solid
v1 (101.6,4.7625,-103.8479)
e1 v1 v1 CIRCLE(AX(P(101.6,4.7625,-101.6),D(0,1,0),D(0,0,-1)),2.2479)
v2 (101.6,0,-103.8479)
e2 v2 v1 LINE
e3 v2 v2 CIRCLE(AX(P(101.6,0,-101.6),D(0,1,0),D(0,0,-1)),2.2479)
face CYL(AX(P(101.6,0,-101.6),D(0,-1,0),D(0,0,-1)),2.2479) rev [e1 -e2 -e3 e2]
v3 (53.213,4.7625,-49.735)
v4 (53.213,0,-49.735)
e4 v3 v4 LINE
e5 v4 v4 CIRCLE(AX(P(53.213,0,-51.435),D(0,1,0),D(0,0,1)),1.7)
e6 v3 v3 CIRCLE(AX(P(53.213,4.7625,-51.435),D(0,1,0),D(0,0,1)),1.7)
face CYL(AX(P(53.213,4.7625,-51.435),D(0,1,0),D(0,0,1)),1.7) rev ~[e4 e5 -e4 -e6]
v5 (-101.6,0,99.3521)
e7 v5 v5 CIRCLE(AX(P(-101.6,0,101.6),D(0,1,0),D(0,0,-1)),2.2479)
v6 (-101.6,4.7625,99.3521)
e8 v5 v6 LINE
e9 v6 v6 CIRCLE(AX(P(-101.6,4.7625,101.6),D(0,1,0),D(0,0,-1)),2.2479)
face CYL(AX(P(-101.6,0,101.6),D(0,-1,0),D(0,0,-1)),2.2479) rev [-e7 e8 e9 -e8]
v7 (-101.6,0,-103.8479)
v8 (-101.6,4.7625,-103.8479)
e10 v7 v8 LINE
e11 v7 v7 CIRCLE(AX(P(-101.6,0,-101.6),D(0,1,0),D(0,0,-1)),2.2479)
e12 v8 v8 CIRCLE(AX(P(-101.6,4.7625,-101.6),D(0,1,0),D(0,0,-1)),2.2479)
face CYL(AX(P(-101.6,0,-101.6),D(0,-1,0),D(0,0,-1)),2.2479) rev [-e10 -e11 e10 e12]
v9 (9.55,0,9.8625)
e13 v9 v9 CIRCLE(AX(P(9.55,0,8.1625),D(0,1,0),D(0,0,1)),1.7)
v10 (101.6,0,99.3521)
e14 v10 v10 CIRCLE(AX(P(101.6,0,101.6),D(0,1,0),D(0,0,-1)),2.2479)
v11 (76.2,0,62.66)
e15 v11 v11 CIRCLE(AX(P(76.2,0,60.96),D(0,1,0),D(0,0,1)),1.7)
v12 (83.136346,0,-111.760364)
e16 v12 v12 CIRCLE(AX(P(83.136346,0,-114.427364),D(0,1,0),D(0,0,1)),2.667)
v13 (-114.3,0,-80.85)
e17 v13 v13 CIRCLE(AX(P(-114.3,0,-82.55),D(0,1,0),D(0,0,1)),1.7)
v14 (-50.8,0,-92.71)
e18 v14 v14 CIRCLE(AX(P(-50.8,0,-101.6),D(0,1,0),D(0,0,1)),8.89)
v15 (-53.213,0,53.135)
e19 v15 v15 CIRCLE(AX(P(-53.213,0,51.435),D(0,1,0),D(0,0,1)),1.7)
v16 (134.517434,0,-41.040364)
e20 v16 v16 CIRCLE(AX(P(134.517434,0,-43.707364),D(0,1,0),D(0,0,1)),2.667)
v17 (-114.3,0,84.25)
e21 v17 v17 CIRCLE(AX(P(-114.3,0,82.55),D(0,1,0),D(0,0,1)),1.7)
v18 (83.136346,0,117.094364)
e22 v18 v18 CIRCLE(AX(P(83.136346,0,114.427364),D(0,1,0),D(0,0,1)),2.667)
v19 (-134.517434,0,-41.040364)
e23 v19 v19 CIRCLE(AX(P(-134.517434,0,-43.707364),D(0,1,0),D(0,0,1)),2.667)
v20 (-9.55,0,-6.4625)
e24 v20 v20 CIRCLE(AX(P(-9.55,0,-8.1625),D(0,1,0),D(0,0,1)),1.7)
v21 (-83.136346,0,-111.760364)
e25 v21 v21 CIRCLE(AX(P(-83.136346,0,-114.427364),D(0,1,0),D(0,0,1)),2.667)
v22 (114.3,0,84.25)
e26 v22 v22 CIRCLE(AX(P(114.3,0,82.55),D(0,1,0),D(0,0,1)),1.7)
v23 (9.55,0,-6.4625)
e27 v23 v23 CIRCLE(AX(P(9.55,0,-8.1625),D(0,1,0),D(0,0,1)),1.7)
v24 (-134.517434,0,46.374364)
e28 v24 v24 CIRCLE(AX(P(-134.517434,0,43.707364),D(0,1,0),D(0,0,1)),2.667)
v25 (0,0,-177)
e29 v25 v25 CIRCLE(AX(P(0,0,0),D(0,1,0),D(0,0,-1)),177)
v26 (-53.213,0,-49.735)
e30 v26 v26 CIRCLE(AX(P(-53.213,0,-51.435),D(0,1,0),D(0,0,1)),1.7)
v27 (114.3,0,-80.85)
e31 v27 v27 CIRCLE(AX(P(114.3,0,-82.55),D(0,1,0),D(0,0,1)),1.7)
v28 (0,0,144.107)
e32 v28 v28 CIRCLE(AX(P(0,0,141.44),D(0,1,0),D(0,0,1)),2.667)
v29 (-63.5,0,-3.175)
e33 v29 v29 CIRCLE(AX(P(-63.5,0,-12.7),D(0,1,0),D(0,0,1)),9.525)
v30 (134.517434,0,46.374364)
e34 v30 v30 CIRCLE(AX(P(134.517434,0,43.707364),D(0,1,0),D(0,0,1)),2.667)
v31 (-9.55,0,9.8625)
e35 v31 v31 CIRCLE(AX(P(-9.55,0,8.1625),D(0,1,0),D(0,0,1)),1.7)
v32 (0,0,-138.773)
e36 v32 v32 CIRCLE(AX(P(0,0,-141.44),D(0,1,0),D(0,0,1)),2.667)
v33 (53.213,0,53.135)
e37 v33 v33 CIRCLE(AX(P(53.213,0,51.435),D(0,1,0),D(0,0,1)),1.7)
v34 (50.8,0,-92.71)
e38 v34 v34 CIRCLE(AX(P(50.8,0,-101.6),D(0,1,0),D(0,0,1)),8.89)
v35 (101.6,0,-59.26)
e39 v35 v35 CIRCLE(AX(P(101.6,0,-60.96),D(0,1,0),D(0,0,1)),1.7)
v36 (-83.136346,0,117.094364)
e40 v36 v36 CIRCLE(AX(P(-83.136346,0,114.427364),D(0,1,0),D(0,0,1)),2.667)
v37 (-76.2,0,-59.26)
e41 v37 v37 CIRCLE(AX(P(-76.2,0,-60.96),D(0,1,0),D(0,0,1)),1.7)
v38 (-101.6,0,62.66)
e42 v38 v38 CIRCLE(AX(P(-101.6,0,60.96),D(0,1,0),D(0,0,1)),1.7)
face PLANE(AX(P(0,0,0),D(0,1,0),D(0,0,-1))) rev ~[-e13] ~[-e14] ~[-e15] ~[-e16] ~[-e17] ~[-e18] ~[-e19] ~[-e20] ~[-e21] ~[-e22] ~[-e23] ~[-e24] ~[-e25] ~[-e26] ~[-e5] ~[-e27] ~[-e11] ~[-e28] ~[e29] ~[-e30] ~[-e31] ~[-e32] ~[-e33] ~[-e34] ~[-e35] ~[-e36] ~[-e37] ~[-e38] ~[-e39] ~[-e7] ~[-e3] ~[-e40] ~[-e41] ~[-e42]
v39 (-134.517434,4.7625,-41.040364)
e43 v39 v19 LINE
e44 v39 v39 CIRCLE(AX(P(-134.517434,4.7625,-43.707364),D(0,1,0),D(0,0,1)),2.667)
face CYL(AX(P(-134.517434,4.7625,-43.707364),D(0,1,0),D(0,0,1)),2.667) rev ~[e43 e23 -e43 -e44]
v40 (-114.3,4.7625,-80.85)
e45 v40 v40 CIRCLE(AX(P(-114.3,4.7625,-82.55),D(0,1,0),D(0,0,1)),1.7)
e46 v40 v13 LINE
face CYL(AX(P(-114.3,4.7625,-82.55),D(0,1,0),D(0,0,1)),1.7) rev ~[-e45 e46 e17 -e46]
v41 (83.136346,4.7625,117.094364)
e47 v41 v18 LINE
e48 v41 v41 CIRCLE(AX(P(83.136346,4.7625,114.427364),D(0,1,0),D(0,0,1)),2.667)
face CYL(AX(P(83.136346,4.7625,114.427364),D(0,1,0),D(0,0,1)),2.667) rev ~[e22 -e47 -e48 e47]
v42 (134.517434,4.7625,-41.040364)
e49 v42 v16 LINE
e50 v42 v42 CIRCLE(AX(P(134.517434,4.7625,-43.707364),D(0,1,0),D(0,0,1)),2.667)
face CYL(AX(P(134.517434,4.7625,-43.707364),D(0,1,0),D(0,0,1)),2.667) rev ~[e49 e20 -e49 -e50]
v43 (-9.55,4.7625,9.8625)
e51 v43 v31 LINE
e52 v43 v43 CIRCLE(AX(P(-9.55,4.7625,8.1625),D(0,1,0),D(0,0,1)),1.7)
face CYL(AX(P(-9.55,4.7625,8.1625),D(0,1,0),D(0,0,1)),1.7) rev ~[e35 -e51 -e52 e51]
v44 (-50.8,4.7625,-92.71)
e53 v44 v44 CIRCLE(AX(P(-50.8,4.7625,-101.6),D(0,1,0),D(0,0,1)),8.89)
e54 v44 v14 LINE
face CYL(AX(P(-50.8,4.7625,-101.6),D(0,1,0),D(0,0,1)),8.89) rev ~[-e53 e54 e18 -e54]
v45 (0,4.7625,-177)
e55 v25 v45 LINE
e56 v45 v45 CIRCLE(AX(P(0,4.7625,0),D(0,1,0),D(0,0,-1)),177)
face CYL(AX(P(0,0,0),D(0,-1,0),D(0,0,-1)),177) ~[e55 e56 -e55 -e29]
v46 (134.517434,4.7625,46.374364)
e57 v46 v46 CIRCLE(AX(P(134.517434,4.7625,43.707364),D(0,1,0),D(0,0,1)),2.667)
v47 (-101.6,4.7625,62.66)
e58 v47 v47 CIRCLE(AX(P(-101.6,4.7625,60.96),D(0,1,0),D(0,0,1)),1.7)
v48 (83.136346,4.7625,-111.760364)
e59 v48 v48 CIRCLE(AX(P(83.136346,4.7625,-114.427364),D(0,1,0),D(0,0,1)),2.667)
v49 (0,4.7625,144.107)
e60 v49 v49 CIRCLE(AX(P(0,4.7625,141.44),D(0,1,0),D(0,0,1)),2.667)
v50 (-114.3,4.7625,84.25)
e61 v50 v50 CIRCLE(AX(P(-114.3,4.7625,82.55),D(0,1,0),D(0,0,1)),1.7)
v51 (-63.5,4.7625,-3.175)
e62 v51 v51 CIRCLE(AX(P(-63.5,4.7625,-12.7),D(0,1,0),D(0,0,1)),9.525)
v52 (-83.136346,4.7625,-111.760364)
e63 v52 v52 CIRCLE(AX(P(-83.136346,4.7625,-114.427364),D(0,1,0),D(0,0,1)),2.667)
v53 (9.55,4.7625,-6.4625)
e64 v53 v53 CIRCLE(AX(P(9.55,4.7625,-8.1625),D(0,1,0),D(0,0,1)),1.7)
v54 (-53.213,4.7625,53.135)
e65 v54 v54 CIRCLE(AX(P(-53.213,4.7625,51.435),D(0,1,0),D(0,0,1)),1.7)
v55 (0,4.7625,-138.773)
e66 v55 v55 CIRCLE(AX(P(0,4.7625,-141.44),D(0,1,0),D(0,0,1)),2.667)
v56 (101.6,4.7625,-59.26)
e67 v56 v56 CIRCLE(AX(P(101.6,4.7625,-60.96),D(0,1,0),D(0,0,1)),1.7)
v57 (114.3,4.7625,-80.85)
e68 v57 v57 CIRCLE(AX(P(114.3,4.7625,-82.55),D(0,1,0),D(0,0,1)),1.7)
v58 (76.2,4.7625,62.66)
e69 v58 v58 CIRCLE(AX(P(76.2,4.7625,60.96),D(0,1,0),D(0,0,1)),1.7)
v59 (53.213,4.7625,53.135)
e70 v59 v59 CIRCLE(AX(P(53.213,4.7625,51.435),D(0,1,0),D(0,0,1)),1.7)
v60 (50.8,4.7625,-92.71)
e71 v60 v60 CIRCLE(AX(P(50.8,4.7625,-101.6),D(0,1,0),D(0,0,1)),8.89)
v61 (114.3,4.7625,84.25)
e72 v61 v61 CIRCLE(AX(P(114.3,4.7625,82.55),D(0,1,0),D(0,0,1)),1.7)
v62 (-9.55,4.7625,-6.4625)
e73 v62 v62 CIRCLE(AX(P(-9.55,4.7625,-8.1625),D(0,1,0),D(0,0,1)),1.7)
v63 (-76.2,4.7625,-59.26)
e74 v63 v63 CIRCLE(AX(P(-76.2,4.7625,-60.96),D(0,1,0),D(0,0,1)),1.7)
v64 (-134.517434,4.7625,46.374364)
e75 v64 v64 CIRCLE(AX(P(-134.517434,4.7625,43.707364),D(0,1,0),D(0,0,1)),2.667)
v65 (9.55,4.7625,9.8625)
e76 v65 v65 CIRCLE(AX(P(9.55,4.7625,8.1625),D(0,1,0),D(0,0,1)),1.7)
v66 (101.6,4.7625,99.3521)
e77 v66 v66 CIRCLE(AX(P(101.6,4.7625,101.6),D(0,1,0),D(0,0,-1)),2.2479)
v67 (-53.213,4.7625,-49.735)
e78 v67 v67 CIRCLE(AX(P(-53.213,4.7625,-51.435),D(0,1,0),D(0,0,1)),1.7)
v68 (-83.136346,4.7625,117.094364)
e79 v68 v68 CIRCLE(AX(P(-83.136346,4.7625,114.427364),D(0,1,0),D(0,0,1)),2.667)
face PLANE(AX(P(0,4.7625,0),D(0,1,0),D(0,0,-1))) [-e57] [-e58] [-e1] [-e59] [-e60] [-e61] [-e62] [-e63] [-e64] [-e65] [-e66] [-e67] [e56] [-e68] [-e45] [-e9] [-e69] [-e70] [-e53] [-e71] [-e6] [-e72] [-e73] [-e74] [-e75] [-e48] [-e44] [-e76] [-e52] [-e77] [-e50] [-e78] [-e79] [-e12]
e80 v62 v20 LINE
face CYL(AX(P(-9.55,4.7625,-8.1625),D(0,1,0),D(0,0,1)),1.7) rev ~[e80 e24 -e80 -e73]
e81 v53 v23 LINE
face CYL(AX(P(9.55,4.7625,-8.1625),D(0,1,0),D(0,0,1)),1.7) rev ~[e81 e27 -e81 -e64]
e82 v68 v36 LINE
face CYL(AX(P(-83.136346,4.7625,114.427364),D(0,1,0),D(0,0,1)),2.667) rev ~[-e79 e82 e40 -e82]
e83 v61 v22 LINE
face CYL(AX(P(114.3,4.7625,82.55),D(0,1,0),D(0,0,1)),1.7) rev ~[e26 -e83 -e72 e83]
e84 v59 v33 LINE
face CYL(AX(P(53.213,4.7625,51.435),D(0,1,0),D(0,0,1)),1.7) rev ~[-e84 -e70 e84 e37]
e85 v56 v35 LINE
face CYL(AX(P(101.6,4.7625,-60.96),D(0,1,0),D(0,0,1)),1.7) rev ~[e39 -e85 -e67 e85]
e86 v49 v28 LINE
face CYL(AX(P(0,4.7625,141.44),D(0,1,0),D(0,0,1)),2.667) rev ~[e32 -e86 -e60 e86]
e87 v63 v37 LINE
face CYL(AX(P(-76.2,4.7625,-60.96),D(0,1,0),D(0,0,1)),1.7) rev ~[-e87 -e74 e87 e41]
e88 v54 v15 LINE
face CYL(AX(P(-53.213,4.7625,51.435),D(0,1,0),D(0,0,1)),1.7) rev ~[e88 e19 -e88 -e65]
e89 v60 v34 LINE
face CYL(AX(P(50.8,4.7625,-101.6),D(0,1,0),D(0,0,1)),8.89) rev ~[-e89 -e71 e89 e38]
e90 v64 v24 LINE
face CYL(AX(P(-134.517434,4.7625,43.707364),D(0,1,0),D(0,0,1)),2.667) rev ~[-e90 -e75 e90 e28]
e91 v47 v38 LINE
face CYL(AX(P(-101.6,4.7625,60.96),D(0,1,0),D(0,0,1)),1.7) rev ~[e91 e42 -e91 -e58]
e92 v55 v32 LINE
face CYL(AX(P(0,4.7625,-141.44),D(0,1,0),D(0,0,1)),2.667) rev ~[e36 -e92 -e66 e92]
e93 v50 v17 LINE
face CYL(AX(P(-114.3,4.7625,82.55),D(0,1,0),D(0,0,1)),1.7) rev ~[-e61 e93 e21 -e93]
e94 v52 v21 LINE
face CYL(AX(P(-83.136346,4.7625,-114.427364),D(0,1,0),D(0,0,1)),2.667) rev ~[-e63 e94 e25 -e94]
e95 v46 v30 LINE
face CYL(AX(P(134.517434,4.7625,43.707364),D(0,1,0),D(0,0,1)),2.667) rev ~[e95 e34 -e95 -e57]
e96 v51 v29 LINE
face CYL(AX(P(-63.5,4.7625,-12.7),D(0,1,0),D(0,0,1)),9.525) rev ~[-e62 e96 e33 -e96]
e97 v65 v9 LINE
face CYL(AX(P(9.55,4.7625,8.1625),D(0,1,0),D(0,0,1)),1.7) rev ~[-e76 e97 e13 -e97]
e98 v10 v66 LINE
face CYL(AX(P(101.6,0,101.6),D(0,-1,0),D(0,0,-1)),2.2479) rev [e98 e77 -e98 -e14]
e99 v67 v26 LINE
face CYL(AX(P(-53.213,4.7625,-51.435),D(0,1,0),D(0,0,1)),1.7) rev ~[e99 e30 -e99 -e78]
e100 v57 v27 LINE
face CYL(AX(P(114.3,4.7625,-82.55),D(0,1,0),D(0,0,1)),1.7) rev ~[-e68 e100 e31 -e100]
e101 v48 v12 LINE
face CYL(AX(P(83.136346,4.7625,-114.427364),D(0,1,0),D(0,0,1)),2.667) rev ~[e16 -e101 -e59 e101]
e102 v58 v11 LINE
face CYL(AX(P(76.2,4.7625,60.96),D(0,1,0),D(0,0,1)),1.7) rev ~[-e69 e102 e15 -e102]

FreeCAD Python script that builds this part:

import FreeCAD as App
import Part
import Sketcher
from FreeCAD import Vector
Q = App.Units.Quantity

doc = App.newDocument("Part")
body = doc.addObject("PartDesign::Body", "Body")

# Sketch on XZ plane
sketch1 = body.newObject("Sketcher::SketchObject", "Sketch")
sketch1.AttachmentSupport = (doc.getObject("XZ_Plane"), [""])
sketch1.MapMode = "FlatFace"
sketch1.addGeometry([
    Part.Circle(Vector(0, 0, 0), Vector(0, 0, 1), 177),  # 0
    Part.Circle(Vector(101.6, 101.6, 0), Vector(0, 0, 1), 2.2),  # 1
    Part.Circle(Vector(101.6, -101.6, 0), Vector(0, 0, 1), 2.2),  # 2
    Part.Circle(Vector(-101.6, 101.6, 0), Vector(0, 0, 1), 2.2),  # 3
    Part.Circle(Vector(-101.6, -101.6, 0), Vector(0, 0, 1), 2.2),  # 4
], False)
sketch1.addConstraint([
    Sketcher.Constraint("Coincident", 0, 3, -1, 1),
    Sketcher.Constraint("Equal", 1, 2),
    Sketcher.Constraint("Equal", 2, 3),
    Sketcher.Constraint("Equal", 3, 4),
    Sketcher.Constraint("Symmetric", 2, 3, 3, 3, -1, 1),
    Sketcher.Constraint("Symmetric", 1, 3, 4, 3, -1, 1),
    Sketcher.Constraint("Symmetric", 1, 3, 3, 3, -2),
    Sketcher.Constraint("Diameter", 1, Q("0.177 in")),
    Sketcher.Constraint("DistanceX", -1, 1, 1, 3, Q("4 in")),
    Sketcher.Constraint("DistanceY", -1, 1, 1, 3, Q("4 in")),
    Sketcher.Constraint("Diameter", 0, Q("354 mm")),
])
pad1 = body.newObject("PartDesign::Pad", "Pad")
pad1.Profile = sketch1
pad1.Length = Q("0.1875 in")
pad1.Reversed = True

# Sketch on XZ plane
sketch2 = body.newObject("Sketcher::SketchObject", "Sketch001")
sketch2.AttachmentSupport = (doc.getObject("XZ_Plane"), [""])
sketch2.MapMode = "FlatFace"
sketch2.AttachmentOffset = App.Placement(Vector(0, 0, -0.1875 * 25.4), App.Rotation())
sketch2.addGeometry([
    Part.Circle(Vector(-53.2, -51.4, 0), Vector(0, 0, 1), 1.7),
    Part.Circle(Vector(53.2, -51.4, 0), Vector(0, 0, 1), 1.7),
    Part.Circle(Vector(-53.2, 51.4, 0), Vector(0, 0, 1), 1.7),
    Part.Circle(Vector(53.2, 51.4, 0), Vector(0, 0, 1), 1.7),
], False)
sketch2.addConstraint([
    Sketcher.Constraint("Equal", 0, 1),
    Sketcher.Constraint("Equal", 1, 2),
    Sketcher.Constraint("Equal", 2, 3),
    Sketcher.Constraint("Symmetric", 1, 3, 2, 3, -1, 1),
    Sketcher.Constraint("Symmetric", 0, 3, 3, 3, -1, 1),
    Sketcher.Constraint("Symmetric", 0, 3, 1, 3, -2),
    Sketcher.Constraint("Diameter", 0, Q("3.4 mm")),
    Sketcher.Constraint("DistanceX", 0, 3, 1, 3, Q("4.19 in")),
    Sketcher.Constraint("DistanceY", 0, 3, 2, 3, Q("4.05 in")),
])
pocket1 = body.newObject("PartDesign::Pocket", "Pocket")
pocket1.Profile = sketch2
pocket1.Type = "ThroughAll"
pocket1.Reversed = True

# Sketch on XZ plane
sketch3 = body.newObject("Sketcher::SketchObject", "Sketch002")
sketch3.AttachmentSupport = (doc.getObject("XZ_Plane"), [""])
sketch3.MapMode = "FlatFace"
sketch3.AttachmentOffset = App.Placement(Vector(0, 0, -0.1875 * 25.4), App.Rotation())
sketch3.addGeometry(Part.Circle(Vector(-64, -13, 0), Vector(0, 0, 1), 10), False)
sketch3.addConstraint([
    Sketcher.Constraint("Diameter", 0, Q("0.75 in")),
    Sketcher.Constraint("DistanceX", 0, 3, -1, 1, Q("2.5 in")),
    Sketcher.Constraint("DistanceY", 0, 3, -1, 1, Q("0.5 in")),
])
pocket2 = body.newObject("PartDesign::Pocket", "Pocket001")
pocket2.Profile = sketch3
pocket2.Type = "ThroughAll"
pocket2.Reversed = True

# Sketch on XZ plane
sketch4 = body.newObject("Sketcher::SketchObject", "Sketch003")
sketch4.AttachmentSupport = (doc.getObject("XZ_Plane"), [""])
sketch4.MapMode = "FlatFace"
sketch4.AttachmentOffset = App.Placement(Vector(0, 0, -0.1875 * 25.4), App.Rotation())
sketch4.addGeometry([
    Part.Circle(Vector(101.6, -61, 0), Vector(0, 0, 1), 1.7),  # 0
    Part.Circle(Vector(76.2, 61, 0), Vector(0, 0, 1), 1.7),  # 1
    Part.Circle(Vector(-101.6, 61, 0), Vector(0, 0, 1), 1.7),  # 2
    Part.Circle(Vector(-76.2, -61, 0), Vector(0, 0, 1), 1.7),  # 3
    Part.Circle(Vector(-50.8, -101.6, 0), Vector(0, 0, 1), 8.9),  # 4
    Part.Circle(Vector(50.8, -101.6, 0), Vector(0, 0, 1), 8.9),  # 5
], False)
sketch4.addConstraint([
    Sketcher.Constraint("Equal", 0, 1),
    Sketcher.Constraint("Equal", 1, 2),
    Sketcher.Constraint("Equal", 2, 3),
    Sketcher.Constraint("Equal", 4, 5),
    Sketcher.Constraint("Symmetric", 0, 3, 2, 3, -1, 1),
    Sketcher.Constraint("Symmetric", 1, 3, 3, 3, -1, 1),
    Sketcher.Constraint("Symmetric", 4, 3, 5, 3, -2),
    Sketcher.Constraint("Horizontal", 1, 3, 2, 3),
    Sketcher.Constraint("Diameter", 4, Q("0.7 in")),
    Sketcher.Constraint("DistanceX", -1, 1, 0, 3, Q("4 in")),
    Sketcher.Constraint("DistanceX", -1, 1, 1, 3, Q("3 in")),
    Sketcher.Constraint("DistanceX", 4, 3, -1, 1, Q("2 in")),
    Sketcher.Constraint("DistanceY", 4, 3, -1, 1, Q("4 in")),
    Sketcher.Constraint("DistanceY", 0, 3, -1, 1, Q("2.4 in")),
    Sketcher.Constraint("Diameter", 0, Q("3.4 mm")),
])
pocket3 = body.newObject("PartDesign::Pocket", "Pocket002")
pocket3.Profile = sketch4
pocket3.Type = "ThroughAll"
pocket3.Reversed = True

# Sketch on XZ plane
sketch5 = body.newObject("Sketcher::SketchObject", "Sketch004")
sketch5.AttachmentSupport = (doc.getObject("XZ_Plane"), [""])
sketch5.MapMode = "FlatFace"
sketch5.AttachmentOffset = App.Placement(Vector(0, 0, -0.1875 * 25.4), App.Rotation())
sketch5.addGeometry([
    Part.Circle(Vector(-9.6, -8.2, 0), Vector(0, 0, 1), 1.7),
    Part.Circle(Vector(9.5, -8.2, 0), Vector(0, 0, 1), 1.7),
    Part.Circle(Vector(-9.6, 8.2, 0), Vector(0, 0, 1), 1.7),
    Part.Circle(Vector(9.5, 8.2, 0), Vector(0, 0, 1), 1.7),
], False)
sketch5.addConstraint([
    Sketcher.Constraint("Equal", 0, 1),
    Sketcher.Constraint("Equal", 1, 2),
    Sketcher.Constraint("Equal", 2, 3),
    Sketcher.Constraint("Symmetric", 1, 3, 2, 3, -1, 1),
    Sketcher.Constraint("Symmetric", 0, 3, 3, 3, -1, 1),
    Sketcher.Constraint("Symmetric", 0, 3, 1, 3, -2),
    Sketcher.Constraint("Diameter", 0, Q("3.4 mm")),
    Sketcher.Constraint("DistanceX", 0, 3, -1, 1, Q("9.55 mm")),
    Sketcher.Constraint("DistanceY", 0, 3, -1, 1, Q("8.1625 mm")),
])
pocket4 = body.newObject("PartDesign::Pocket", "Pocket003")
pocket4.Profile = sketch5
pocket4.Type = "ThroughAll"
pocket4.Reversed = True

# Sketch on XZ plane
sketch6 = body.newObject("Sketcher::SketchObject", "Sketch005")
sketch6.AttachmentSupport = (doc.getObject("XZ_Plane"), [""])
sketch6.MapMode = "FlatFace"
sketch6.AttachmentOffset = App.Placement(Vector(0, 0, -0.1875 * 25.4), App.Rotation())
sketch6.addGeometry([
    Part.Circle(Vector(-114.3, 82.5, 0), Vector(0, 0, 1), 1.7),
    Part.Circle(Vector(-114.3, -82.5, 0), Vector(0, 0, 1), 1.7),
    Part.Circle(Vector(114.3, -82.5, 0), Vector(0, 0, 1), 1.7),
    Part.Circle(Vector(114.3, 82.5, 0), Vector(0, 0, 1), 1.7),
], False)
sketch6.addConstraint([
    Sketcher.Constraint("Equal", 0, 1),
    Sketcher.Constraint("Equal", 1, 2),
    Sketcher.Constraint("Equal", 2, 3),
    Sketcher.Constraint("Symmetric", 0, 3, 2, 3, -1, 1),
    Sketcher.Constraint("Symmetric", 1, 3, 3, 3, -1, 1),
    Sketcher.Constraint("Symmetric", 1, 3, 2, 3, -2),
    Sketcher.Constraint("DistanceX", 1, 3, 2, 3, Q("9 in")),
    Sketcher.Constraint("DistanceY", 1, 3, 0, 3, Q("6.5 in")),
    Sketcher.Constraint("Diameter", 0, Q("3.4 mm")),
])
pocket5 = body.newObject("PartDesign::Pocket", "Pocket004")
pocket5.Profile = sketch6
pocket5.Type = "ThroughAll"
pocket5.Reversed = True

# Sketch on XZ plane
sketch7 = body.newObject("Sketcher::SketchObject", "Sketch006")
sketch7.AttachmentSupport = (doc.getObject("XZ_Plane"), [""])
sketch7.MapMode = "FlatFace"
sketch7.AttachmentOffset = App.Placement(Vector(0, 0, -0.1875 * 25.4), App.Rotation())
sketch7.addGeometry([
    Part.Circle(Vector(0, 141.4, 0), Vector(0, 0, 1), 2.7),  # 0
    Part.Circle(Vector(-83.1, 114.4, 0), Vector(0, 0, 1), 2.7),  # 1
    Part.Circle(Vector(-134.5, 43.7, 0), Vector(0, 0, 1), 2.7),  # 2
    Part.Circle(Vector(-134.5, -43.7, 0), Vector(0, 0, 1), 2.7),  # 3
    Part.Circle(Vector(-83.1, -114.4, 0), Vector(0, 0, 1), 2.7),  # 4
    Part.Circle(Vector(0, -141.4, 0), Vector(0, 0, 1), 2.7),  # 5
    Part.Circle(Vector(83.1, -114.4, 0), Vector(0, 0, 1), 2.7),  # 6
    Part.Circle(Vector(134.5, -43.7, 0), Vector(0, 0, 1), 2.7),  # 7
    Part.Circle(Vector(134.5, 43.7, 0), Vector(0, 0, 1), 2.7),  # 8
    Part.Circle(Vector(83.1, 114.4, 0), Vector(0, 0, 1), 2.7),  # 9
], False)
sketch7.addConstraint([
    Sketcher.Constraint("Equal", 0, 1),
    Sketcher.Constraint("Equal", 1, 2),
    Sketcher.Constraint("Equal", 2, 3),
    Sketcher.Constraint("Equal", 3, 4),
    Sketcher.Constraint("Equal", 4, 5),
    Sketcher.Constraint("Equal", 5, 6),
    Sketcher.Constraint("Equal", 6, 7),
    Sketcher.Constraint("Equal", 7, 8),
    Sketcher.Constraint("Equal", 8, 9),
    Sketcher.Constraint("Symmetric", 0, 3, 5, 3, -1, 1),
    Sketcher.Constraint("Symmetric", 1, 3, 6, 3, -1, 1),
    Sketcher.Constraint("Symmetric", 2, 3, 7, 3, -1, 1),
    Sketcher.Constraint("Symmetric", 3, 3, 8, 3, -1, 1),
    Sketcher.Constraint("Symmetric", 4, 3, 9, 3, -1, 1),
    Sketcher.Constraint("Symmetric", 4, 3, 6, 3, -2),
    Sketcher.Constraint("Symmetric", 3, 3, 7, 3, -2),
    Sketcher.Constraint("PointOnObject", 0, 3, -2),
    Sketcher.Constraint("Diameter", 0, Q("0.21 in")),
    Sketcher.Constraint("DistanceY", -1, 1, 0, 3, Q("141.44 mm")),
    Sketcher.Constraint("DistanceY", 2, 3, 1, 3, Q("70.72 mm")),
    Sketcher.Constraint("DistanceX", 3, 3, 6, 3, Q("217.65378 mm")),
    Sketcher.Constraint("DistanceX", 1, 3, -1, 1, Q("83.136346 mm")),
    Sketcher.Constraint("DistanceY", -1, 1, 1, 3, Q("114.427364 mm")),
])
pocket6 = body.newObject("PartDesign::Pocket", "Pocket005")
pocket6.Profile = sketch7
pocket6.Type = "ThroughAll"
pocket6.Reversed = True

doc.recompute()
